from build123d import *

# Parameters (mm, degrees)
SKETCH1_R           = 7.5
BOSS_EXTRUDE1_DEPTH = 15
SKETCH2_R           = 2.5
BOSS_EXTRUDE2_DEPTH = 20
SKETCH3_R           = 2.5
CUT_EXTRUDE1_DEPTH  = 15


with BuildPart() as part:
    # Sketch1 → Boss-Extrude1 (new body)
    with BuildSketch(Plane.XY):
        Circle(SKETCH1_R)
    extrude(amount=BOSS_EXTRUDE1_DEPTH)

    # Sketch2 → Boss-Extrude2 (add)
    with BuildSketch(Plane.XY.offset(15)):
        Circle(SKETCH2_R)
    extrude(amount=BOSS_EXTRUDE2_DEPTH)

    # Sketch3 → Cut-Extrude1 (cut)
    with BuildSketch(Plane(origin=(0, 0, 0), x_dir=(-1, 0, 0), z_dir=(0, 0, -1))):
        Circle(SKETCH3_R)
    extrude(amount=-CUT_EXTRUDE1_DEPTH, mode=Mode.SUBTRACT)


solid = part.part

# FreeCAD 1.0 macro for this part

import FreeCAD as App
import Part
import Sketcher

V = App.Vector

doc = App.newDocument("Part")
body = doc.addObject("PartDesign::Body", "Body")
body.AllowCompound = True

sketch1 = doc.addObject("Sketcher::SketchObject", "Sketch")
body.addObject(sketch1)
sketch1.AttachmentSupport = (doc.XY_Plane, [""])
sketch1.MapMode = "FlatFace"
sketch1.addGeometry(Part.Circle(V(0, 0, 0), V(0, 0, 1), 7.5), False)
sketch1.addConstraint([
    Sketcher.Constraint("Coincident", 0, 3, -1, 1),
    Sketcher.Constraint("Diameter", 0, 15.0),
])
pad1 = doc.addObject("PartDesign::Pad", "Pad")
body.addObject(pad1)
pad1.Profile = sketch1
pad1.Length = 15

sketch2 = doc.addObject("Sketcher::SketchObject", "Sketch001")
body.addObject(sketch2)
sketch2.AttachmentSupport = (doc.XY_Plane, [""])
sketch2.MapMode = "FlatFace"
sketch2.AttachmentOffset = App.Placement(V(0, 0, 15), App.Rotation())
sketch2.addGeometry(Part.Circle(V(0, 0, 0), V(0, 0, 1), 2.5), False)
sketch2.addConstraint([
    Sketcher.Constraint("Coincident", 0, 3, -1, 1),
    Sketcher.Constraint("Diameter", 0, 5.0),
])
pad2 = doc.addObject("PartDesign::Pad", "Pad001")
body.addObject(pad2)
pad2.Profile = sketch2
pad2.Length = 20

sketch3 = doc.addObject("Sketcher::SketchObject", "Sketch002")
body.addObject(sketch3)
sketch3.AttachmentSupport = (doc.XY_Plane, [""])
sketch3.MapMode = "FlatFace"
sketch3.addGeometry(Part.Circle(V(0, 0, 0), V(0, 0, 1), 2.5), False)
sketch3.addConstraint([
    Sketcher.Constraint("Coincident", 0, 3, -1, 1),
    Sketcher.Constraint("Diameter", 0, 5.0),
])
pocket1 = doc.addObject("PartDesign::Pocket", "Pocket")
body.addObject(pocket1)
pocket1.Profile = sketch3
pocket1.Length = 15
pocket1.Reversed = True

doc.recompute()
